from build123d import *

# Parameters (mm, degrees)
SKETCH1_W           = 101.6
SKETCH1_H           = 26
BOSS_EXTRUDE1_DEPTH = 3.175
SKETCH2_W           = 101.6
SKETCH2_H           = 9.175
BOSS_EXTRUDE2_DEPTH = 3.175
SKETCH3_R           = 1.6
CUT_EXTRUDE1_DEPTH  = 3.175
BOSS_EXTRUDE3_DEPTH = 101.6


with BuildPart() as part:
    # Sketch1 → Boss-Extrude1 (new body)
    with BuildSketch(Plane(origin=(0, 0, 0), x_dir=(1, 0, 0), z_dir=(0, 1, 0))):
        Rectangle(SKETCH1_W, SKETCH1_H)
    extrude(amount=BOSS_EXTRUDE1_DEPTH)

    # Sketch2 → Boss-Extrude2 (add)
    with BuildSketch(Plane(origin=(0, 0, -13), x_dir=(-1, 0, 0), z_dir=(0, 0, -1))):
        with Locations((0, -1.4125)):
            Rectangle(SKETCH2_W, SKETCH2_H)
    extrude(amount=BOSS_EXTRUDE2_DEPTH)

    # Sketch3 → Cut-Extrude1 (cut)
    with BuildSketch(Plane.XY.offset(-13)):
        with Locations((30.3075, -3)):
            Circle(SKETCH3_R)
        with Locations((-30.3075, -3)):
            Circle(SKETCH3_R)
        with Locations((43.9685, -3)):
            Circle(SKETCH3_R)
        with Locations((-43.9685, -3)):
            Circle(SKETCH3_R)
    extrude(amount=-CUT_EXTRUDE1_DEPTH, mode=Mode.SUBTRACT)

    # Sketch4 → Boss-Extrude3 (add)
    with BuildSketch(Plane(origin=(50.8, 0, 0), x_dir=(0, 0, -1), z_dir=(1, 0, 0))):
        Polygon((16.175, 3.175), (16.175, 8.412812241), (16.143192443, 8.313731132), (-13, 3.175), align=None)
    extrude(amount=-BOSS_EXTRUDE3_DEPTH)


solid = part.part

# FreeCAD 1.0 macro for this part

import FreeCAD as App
import Part
import Sketcher
from FreeCAD import Vector
Q = App.Units.Quantity


def add_polygon(sketch, points):
    """Adds a closed chain of lines whose ends are joined by coincident constraints."""
    first, n = sketch.GeometryCount, len(points)
    for a, b in zip(points, points[1:] + points[:1]):
        sketch.addGeometry(Part.LineSegment(App.Vector(*a, 0), App.Vector(*b, 0)), False)
    for i in range(n):
        sketch.addConstraint(Sketcher.Constraint("Coincident", first + i, 2, first + (i + 1) % n, 1))

doc = App.newDocument("Part")
body = doc.addObject("PartDesign::Body", "Body")

# Sketch on XZ plane
sketch1 = body.newObject("Sketcher::SketchObject", "Sketch")
sketch1.AttachmentSupport = (doc.getObject("XZ_Plane"), [""])
sketch1.MapMode = "FlatFace"
add_polygon(sketch1, [(-51, -13), (-51, 13), (51, 13), (51, -13)])  # lines 0-3
sketch1.addConstraint(Sketcher.Constraint("Vertical", 0))
sketch1.addConstraint(Sketcher.Constraint("Horizontal", 1))
sketch1.addConstraint(Sketcher.Constraint("Vertical", 2))
sketch1.addConstraint(Sketcher.Constraint("Horizontal", 3))
sketch1.addConstraint(Sketcher.Constraint("Symmetric", 0, 2, 2, 2, -1, 1))
sketch1.addConstraint(Sketcher.Constraint("DistanceY", 0, 1, 0, 2, Q("26 mm")))
sketch1.addConstraint(Sketcher.Constraint("DistanceX", 1, 1, 1, 2, Q("101.6 mm")))
pad1 = body.newObject("PartDesign::Pad", "Pad")
pad1.Profile = sketch1
pad1.Length = 3.175
pad1.Reversed = True

# Sketch on XY plane
sketch2 = body.newObject("Sketcher::SketchObject", "Sketch001")
sketch2.AttachmentSupport = (doc.getObject("XY_Plane"), [""])
sketch2.MapMode = "FlatFace"
sketch2.AttachmentOffset = App.Placement(Vector(0, 0, -13), App.Rotation())
add_polygon(sketch2, [(51, 3), (51, -6), (-51, -6), (-51, 3)])  # lines 0-3
sketch2.addConstraint(Sketcher.Constraint("Vertical", 0))
sketch2.addConstraint(Sketcher.Constraint("Horizontal", 1))
sketch2.addConstraint(Sketcher.Constraint("Vertical", 2))
sketch2.addConstraint(Sketcher.Constraint("Horizontal", 3))
sketch2.addConstraint(Sketcher.Constraint("DistanceX", 1, 2, 1, 1, Q("101.6 mm")))
sketch2.addConstraint(Sketcher.Constraint("DistanceY", 0, 2, -1, 1, Q("6 mm")))
sketch2.addConstraint(Sketcher.Constraint("DistanceX", -1, 1, 0, 2, Q("50.8 mm")))
sketch2.addConstraint(Sketcher.Constraint("DistanceY", 0, 2, 0, 1, Q("9.175 mm")))
pad2 = body.newObject("PartDesign::Pad", "Pad001")
pad2.Profile = sketch2
pad2.Length = 3.175
pad2.Reversed = True

# Sketch on XY plane
sketch3 = body.newObject("Sketcher::SketchObject", "Sketch002")
sketch3.AttachmentSupport = (doc.getObject("XY_Plane"), [""])
sketch3.MapMode = "FlatFace"
sketch3.AttachmentOffset = App.Placement(Vector(0, 0, -13), App.Rotation())
sketch3.addGeometry(Part.Circle(Vector(30.3, -3, 0), Vector(0, 0, 1), 1.6), False)
sketch3.addGeometry(Part.Circle(Vector(-30.3, -3, 0), Vector(0, 0, 1), 1.6), False)
sketch3.addGeometry(Part.Circle(Vector(44, -3, 0), Vector(0, 0, 1), 1.6), False)
sketch3.addGeometry(Part.Circle(Vector(-44, -3, 0), Vector(0, 0, 1), 1.6), False)
sketch3.addConstraint(Sketcher.Constraint("Equal", 0, 1))
sketch3.addConstraint(Sketcher.Constraint("Equal", 1, 2))
sketch3.addConstraint(Sketcher.Constraint("Equal", 2, 3))
sketch3.addConstraint(Sketcher.Constraint("Symmetric", 0, 3, 1, 3, -2))
sketch3.addConstraint(Sketcher.Constraint("Symmetric", 2, 3, 3, 3, -2))
sketch3.addConstraint(Sketcher.Constraint("Horizontal", 1, 3, 2, 3))
sketch3.addConstraint(Sketcher.Constraint("Diameter", 0, Q("3.2 mm")))
sketch3.addConstraint(Sketcher.Constraint("DistanceY", 0, 3, -1, 1, Q("3 mm")))
sketch3.addConstraint(Sketcher.Constraint("DistanceX", 1, 3, 0, 3, Q("60.615 mm")))
sketch3.addConstraint(Sketcher.Constraint("DistanceX", 0, 3, 2, 3, Q("13.661 mm")))
pocket1 = body.newObject("PartDesign::Pocket", "Pocket")
pocket1.Profile = sketch3
pocket1.Length = 3.175

# Sketch on YZ plane
sketch4 = body.newObject("Sketcher::SketchObject", "Sketch003")
sketch4.AttachmentSupport = (doc.getObject("YZ_Plane"), [""])
sketch4.MapMode = "FlatFace"
sketch4.AttachmentOffset = App.Placement(Vector(0, 0, 50.8), App.Rotation())
add_polygon(sketch4, [(3.17, -16.18), (8.41, -16.18), (8.31, -16.14), (3.17, 13)])  # lines 0-3
sketch4.addConstraint(Sketcher.Constraint("Horizontal", 0))
sketch4.addConstraint(Sketcher.Constraint("Vertical", 3))
sketch4.addConstraint(Sketcher.Constraint("Angle", 2, Q("100 deg")))
sketch4.addConstraint(Sketcher.Constraint("DistanceY", -1, 1, 2, 2, Q("13 mm")))
sketch4.addConstraint(Sketcher.Constraint("DistanceY", 3, 2, 3, 1, Q("29.175 mm")))
sketch4.addConstraint(Sketcher.Constraint("DistanceX", -1, 1, 2, 2, Q("3.175 mm")))
sketch4.addConstraint(Sketcher.Constraint("Distance", 1, Q("0.104061 mm")))
sketch4.addConstraint(Sketcher.Constraint("DistanceX", 0, 1, 0, 2, Q("5.237812 mm")))
pad3 = body.newObject("PartDesign::Pad", "Pad002")
pad3.Profile = sketch4
pad3.Length = 101.6
pad3.Reversed = True

doc.recompute()
